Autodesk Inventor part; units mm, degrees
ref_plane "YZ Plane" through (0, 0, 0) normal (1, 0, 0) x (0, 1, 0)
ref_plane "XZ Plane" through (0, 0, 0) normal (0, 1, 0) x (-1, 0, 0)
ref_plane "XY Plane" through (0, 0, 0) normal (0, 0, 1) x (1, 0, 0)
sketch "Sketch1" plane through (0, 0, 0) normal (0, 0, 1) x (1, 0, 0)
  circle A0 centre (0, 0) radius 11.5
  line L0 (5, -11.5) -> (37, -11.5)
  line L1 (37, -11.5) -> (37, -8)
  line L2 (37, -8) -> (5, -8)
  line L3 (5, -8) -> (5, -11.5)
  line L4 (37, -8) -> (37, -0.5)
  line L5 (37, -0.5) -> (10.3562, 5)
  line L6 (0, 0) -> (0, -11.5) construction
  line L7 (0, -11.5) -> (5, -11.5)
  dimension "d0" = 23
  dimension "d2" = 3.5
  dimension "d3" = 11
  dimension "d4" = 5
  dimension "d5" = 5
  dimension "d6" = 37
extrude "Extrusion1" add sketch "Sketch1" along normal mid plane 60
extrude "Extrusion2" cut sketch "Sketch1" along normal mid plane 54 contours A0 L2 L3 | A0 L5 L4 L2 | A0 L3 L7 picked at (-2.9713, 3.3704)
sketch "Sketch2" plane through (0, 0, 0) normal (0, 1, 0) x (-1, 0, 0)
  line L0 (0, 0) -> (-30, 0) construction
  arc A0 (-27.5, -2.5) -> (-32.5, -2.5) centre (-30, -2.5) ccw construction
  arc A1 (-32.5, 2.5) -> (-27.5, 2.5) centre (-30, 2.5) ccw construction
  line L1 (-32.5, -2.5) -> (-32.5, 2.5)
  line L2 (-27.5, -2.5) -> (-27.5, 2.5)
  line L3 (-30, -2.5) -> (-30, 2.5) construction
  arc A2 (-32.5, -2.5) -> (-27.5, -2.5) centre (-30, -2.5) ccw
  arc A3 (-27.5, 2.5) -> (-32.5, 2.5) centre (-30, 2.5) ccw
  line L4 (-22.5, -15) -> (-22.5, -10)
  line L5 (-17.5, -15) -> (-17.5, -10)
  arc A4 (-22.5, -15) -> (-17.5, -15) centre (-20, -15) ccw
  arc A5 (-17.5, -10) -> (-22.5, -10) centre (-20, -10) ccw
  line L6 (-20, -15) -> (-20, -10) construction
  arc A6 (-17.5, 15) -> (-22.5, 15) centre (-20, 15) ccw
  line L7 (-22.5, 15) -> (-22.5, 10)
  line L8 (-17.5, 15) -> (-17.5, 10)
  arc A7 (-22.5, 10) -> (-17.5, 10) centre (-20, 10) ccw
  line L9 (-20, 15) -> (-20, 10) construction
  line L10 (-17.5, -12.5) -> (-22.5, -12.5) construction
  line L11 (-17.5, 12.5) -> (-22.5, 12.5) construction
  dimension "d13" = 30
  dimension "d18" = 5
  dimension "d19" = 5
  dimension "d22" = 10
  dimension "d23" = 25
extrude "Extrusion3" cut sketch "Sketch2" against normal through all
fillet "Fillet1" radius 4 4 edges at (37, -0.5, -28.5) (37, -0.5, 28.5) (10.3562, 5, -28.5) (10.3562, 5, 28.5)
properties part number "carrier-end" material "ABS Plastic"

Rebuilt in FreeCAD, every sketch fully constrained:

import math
import FreeCAD as App
import Part
import Sketcher


def edges_at(feature, points):
    """Names of the edges that pass closest to the given points."""
    edges = feature.Shape.Edges
    near = lambda p: min(range(len(edges)), key=lambda i: edges[i].distToShape(Part.Vertex(*p))[0])
    return sorted({f"Edge{near(p) + 1}" for p in points})

doc = App.newDocument("Part")
body = doc.addObject("PartDesign::Body", "Body")

# Sketch on XY plane
sketch1 = doc.addObject("Sketcher::SketchObject", "Sketch")
body.addObject(sketch1)
sketch1.AttachmentSupport = (doc.XY_Plane, [""])
sketch1.MapMode = "FlatFace"
sketch1.addGeometry([
    Part.ArcOfCircle(Part.Circle(App.Vector(0, 0, 0), App.Vector(0, 0, 1), 12), math.radians(26), math.radians(270)),
    Part.LineSegment(App.Vector(0, -12, 0), App.Vector(37, -12, 0)),
    Part.LineSegment(App.Vector(37, -12, 0), App.Vector(37, 0, 0)),
    Part.LineSegment(App.Vector(37, 0, 0), App.Vector(10, 5, 0)),
], False)
sketch1.addConstraint([
    Sketcher.Constraint("Tangent", 0, 2, 1, 1),
    Sketcher.Constraint("Coincident", 1, 2, 2, 1),
    Sketcher.Constraint("Coincident", 2, 2, 3, 1),
    Sketcher.Constraint("Coincident", 3, 2, 0, 1),
    Sketcher.Constraint("Horizontal", 1),
    Sketcher.Constraint("Vertical", 2),
    Sketcher.Constraint("Coincident", 0, 3, -1, 1),
    Sketcher.Constraint("Radius", 0, 11.5),
    Sketcher.Constraint("DistanceX", 1, 1, 1, 2, 37.0),
    Sketcher.Constraint("DistanceY", 2, 1, 2, 2, 11.0),
    Sketcher.Constraint("DistanceY", -1, 1, 3, 2, 5.0),
])
pad1 = doc.addObject("PartDesign::Pad", "Pad")
body.addObject(pad1)
pad1.Profile = sketch1
pad1.Length = 60
pad1.Midplane = True

# Sketch on XY plane
sketch2 = doc.addObject("Sketcher::SketchObject", "Sketch001")
body.addObject(sketch2)
sketch2.AttachmentSupport = (doc.XY_Plane, [""])
sketch2.MapMode = "FlatFace"
sketch2.addGeometry([
    Part.LineSegment(App.Vector(5, -8, 0), App.Vector(37, -8, 0)),  # 0
    Part.LineSegment(App.Vector(37, -8, 0), App.Vector(37, -0.5, 0)),  # 1
    Part.LineSegment(App.Vector(37, -0.5, 0), App.Vector(10.4, 5, 0)),  # 2
    Part.ArcOfCircle(Part.Circle(App.Vector(0, 0, 0), App.Vector(0, 0, 1), 11.5), math.radians(26), math.radians(270)),  # 3
    Part.LineSegment(App.Vector(0, -11.5, 0), App.Vector(5, -11.5, 0)),  # 4
    Part.LineSegment(App.Vector(5, -11.5, 0), App.Vector(5, -8, 0)),  # 5
], False)
sketch2.addConstraint([
    Sketcher.Constraint("Coincident", 0, 2, 1, 1),
    Sketcher.Constraint("Coincident", 1, 2, 2, 1),
    Sketcher.Constraint("Coincident", 2, 2, 3, 1),
    Sketcher.Constraint("Tangent", 3, 2, 4, 1),
    Sketcher.Constraint("Coincident", 4, 2, 5, 1),
    Sketcher.Constraint("Coincident", 5, 2, 0, 1),
    Sketcher.Constraint("Horizontal", 0),
    Sketcher.Constraint("Vertical", 1),
    Sketcher.Constraint("Horizontal", 4),
    Sketcher.Constraint("Vertical", 5),
    Sketcher.Constraint("Coincident", 3, 3, -1, 1),
    Sketcher.Constraint("Radius", 3, 11.5),
    Sketcher.Constraint("DistanceX", 4, 1, 4, 2, 5.0),
    Sketcher.Constraint("DistanceY", 5, 1, 5, 2, 3.5),
    Sketcher.Constraint("DistanceX", -1, 1, 0, 2, 37.0),
    Sketcher.Constraint("DistanceY", -1, 1, 2, 2, 5.0),
    Sketcher.Constraint("DistanceY", 3, 2, 1, 2, 11.0),
])
pocket1 = doc.addObject("PartDesign::Pocket", "Pocket")
body.addObject(pocket1)
pocket1.Profile = sketch2
pocket1.Length = 54
pocket1.Midplane = True

# Sketch on XZ plane
sketch3 = doc.addObject("Sketcher::SketchObject", "Sketch002")
body.addObject(sketch3)
sketch3.AttachmentSupport = (doc.XZ_Plane, [""])
sketch3.MapMode = "FlatFace"
sketch3.addGeometry([
    Part.LineSegment(App.Vector(32.5, 2.5, 0), App.Vector(32.5, -2.5, 0)),  # 0
    Part.ArcOfCircle(Part.Circle(App.Vector(30, -2.5, 0), App.Vector(0, 0, 1), 2.5), math.radians(180), math.radians(360)),  # 1
    Part.LineSegment(App.Vector(27.5, -2.5, 0), App.Vector(27.5, 2.5, 0)),  # 2
    Part.ArcOfCircle(Part.Circle(App.Vector(30, 2.5, 0), App.Vector(0, 0, 1), 2.5), math.radians(0), math.radians(180)),  # 3
    Part.LineSegment(App.Vector(22.5, -10, 0), App.Vector(22.5, -15, 0)),  # 4
    Part.ArcOfCircle(Part.Circle(App.Vector(20, -15, 0), App.Vector(0, 0, 1), 2.5), math.radians(180), math.radians(360)),  # 5
    Part.LineSegment(App.Vector(17.5, -15, 0), App.Vector(17.5, -10, 0)),  # 6
    Part.ArcOfCircle(Part.Circle(App.Vector(20, -10, 0), App.Vector(0, 0, 1), 2.5), math.radians(0), math.radians(180)),  # 7
    Part.LineSegment(App.Vector(17.5, 10, 0), App.Vector(17.5, 15, 0)),  # 8
    Part.ArcOfCircle(Part.Circle(App.Vector(20, 15, 0), App.Vector(0, 0, 1), 2.5), math.radians(0), math.radians(180)),  # 9
    Part.LineSegment(App.Vector(22.5, 15, 0), App.Vector(22.5, 10, 0)),  # 10
    Part.ArcOfCircle(Part.Circle(App.Vector(20, 10, 0), App.Vector(0, 0, 1), 2.5), math.radians(180), math.radians(360)),  # 11
], False)
sketch3.addConstraint([
    Sketcher.Constraint("Tangent", 0, 2, 1, 2),
    Sketcher.Constraint("Tangent", 1, 1, 2, 1),
    Sketcher.Constraint("Tangent", 2, 2, 3, 2),
    Sketcher.Constraint("Tangent", 3, 1, 0, 1),
    Sketcher.Constraint("Tangent", 4, 2, 5, 2),
    Sketcher.Constraint("Tangent", 5, 1, 6, 1),
    Sketcher.Constraint("Tangent", 6, 2, 7, 2),
    Sketcher.Constraint("Tangent", 7, 1, 4, 1),
    Sketcher.Constraint("Tangent", 8, 2, 9, 2),
    Sketcher.Constraint("Tangent", 9, 1, 10, 1),
    Sketcher.Constraint("Tangent", 10, 2, 11, 2),
    Sketcher.Constraint("Tangent", 11, 1, 8, 1),
    Sketcher.Constraint("Vertical", 0),
    Sketcher.Constraint("Vertical", 2),
    Sketcher.Constraint("Vertical", 4),
    Sketcher.Constraint("Vertical", 6),
    Sketcher.Constraint("Vertical", 8),
    Sketcher.Constraint("Vertical", 10),
    Sketcher.Constraint("Equal", 3, 5),
    Sketcher.Constraint("Equal", 7, 9),
    Sketcher.Constraint("Symmetric", 5, 3, 9, 3, -1),
    Sketcher.Constraint("Equal", 2, 4),
    Sketcher.Constraint("Equal", 6, 8),
    Sketcher.Constraint("Radius", 1, 2.5),
    Sketcher.Constraint("DistanceY", 0, 2, 0, 1, 5.0),
    Sketcher.Constraint("DistanceX", -1, 1, 1, 3, 30.0),
    Sketcher.Constraint("DistanceY", 7, 3, -1, 1, 10.0),
    Sketcher.Constraint("DistanceX", 5, 3, 1, 3, 10.0),
    Sketcher.Constraint("DistanceY", 1, 3, -1, 1, 2.5),
])
pocket2 = doc.addObject("PartDesign::Pocket", "Pocket001")
body.addObject(pocket2)
pocket2.Profile = sketch3
pocket2.Type = "ThroughAll"
pocket2.Reversed = True
doc.recompute()

fillet = doc.addObject("PartDesign::Fillet", "Fillet")
body.addObject(fillet)
fillet.Base = (pocket2, edges_at(pocket2, [
    (37, -0.5, -28.5),
    (37, -0.5, 28.5),
    (10.356, 5, -28.5),
    (10.356, 5, 28.5),
]))
fillet.Radius = 4

doc.recompute()
